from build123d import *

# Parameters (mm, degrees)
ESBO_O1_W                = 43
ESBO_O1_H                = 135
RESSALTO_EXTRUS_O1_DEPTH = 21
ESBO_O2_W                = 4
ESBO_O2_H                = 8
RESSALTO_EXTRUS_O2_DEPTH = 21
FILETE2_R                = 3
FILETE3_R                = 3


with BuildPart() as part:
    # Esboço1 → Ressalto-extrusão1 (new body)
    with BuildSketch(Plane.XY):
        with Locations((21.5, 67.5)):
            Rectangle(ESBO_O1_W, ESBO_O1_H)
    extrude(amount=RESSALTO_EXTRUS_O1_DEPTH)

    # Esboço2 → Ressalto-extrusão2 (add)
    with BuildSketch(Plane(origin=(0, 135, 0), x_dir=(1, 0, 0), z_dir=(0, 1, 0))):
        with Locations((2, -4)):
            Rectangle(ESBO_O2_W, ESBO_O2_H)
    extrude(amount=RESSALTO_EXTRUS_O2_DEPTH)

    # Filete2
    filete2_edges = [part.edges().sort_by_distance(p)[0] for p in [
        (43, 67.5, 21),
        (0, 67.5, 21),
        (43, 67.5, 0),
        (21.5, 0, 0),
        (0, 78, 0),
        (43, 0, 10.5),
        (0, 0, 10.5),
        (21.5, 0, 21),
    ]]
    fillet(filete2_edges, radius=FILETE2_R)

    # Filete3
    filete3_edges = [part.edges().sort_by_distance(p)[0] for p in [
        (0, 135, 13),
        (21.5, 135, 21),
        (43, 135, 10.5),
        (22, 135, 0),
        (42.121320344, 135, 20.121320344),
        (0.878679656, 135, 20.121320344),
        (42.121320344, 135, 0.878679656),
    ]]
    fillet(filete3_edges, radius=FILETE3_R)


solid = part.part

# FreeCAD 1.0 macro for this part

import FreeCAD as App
import Part
import Sketcher

V = App.Vector


def edges_at(feature, points):
    """Names of the edges that pass closest to the given points."""
    edges = feature.Shape.Edges
    near = lambda p: min(range(len(edges)), key=lambda i: edges[i].distToShape(Part.Vertex(*p))[0])
    return sorted({f"Edge{near(p) + 1}" for p in points})


def add_polygon(sketch, points):
    """Adds a closed chain of lines whose ends are joined by coincident constraints."""
    first, n = sketch.GeometryCount, len(points)
    for a, b in zip(points, points[1:] + points[:1]):
        sketch.addGeometry(Part.LineSegment(App.Vector(*a, 0), App.Vector(*b, 0)), False)
    for i in range(n):
        sketch.addConstraint(Sketcher.Constraint("Coincident", first + i, 2, first + (i + 1) % n, 1))

doc = App.newDocument("Part")
body = doc.addObject("PartDesign::Body", "Body")

# Sketch on XY plane
sketch1 = doc.addObject("Sketcher::SketchObject", "Sketch")
body.addObject(sketch1)
sketch1.AttachmentSupport = (doc.XY_Plane, [""])
sketch1.MapMode = "FlatFace"
add_polygon(sketch1, [(0, 135), (0, 0), (43, 0), (43, 135)])  # lines 0-3
sketch1.addConstraint(Sketcher.Constraint("Vertical", 0))
sketch1.addConstraint(Sketcher.Constraint("Horizontal", 1))
sketch1.addConstraint(Sketcher.Constraint("Vertical", 2))
sketch1.addConstraint(Sketcher.Constraint("Horizontal", 3))
sketch1.addConstraint(Sketcher.Constraint("Coincident", 0, 2, -1, 1))
sketch1.addConstraint(Sketcher.Constraint("DistanceX", 1, 1, 1, 2, 43.0))
sketch1.addConstraint(Sketcher.Constraint("DistanceY", 0, 2, 0, 1, 135.0))
pad1 = doc.addObject("PartDesign::Pad", "Pad")
body.addObject(pad1)
pad1.Profile = sketch1
pad1.Length = 21

# Sketch on XZ plane
sketch2 = doc.addObject("Sketcher::SketchObject", "Sketch001")
body.addObject(sketch2)
sketch2.AttachmentSupport = (doc.XZ_Plane, [""])
sketch2.MapMode = "FlatFace"
sketch2.AttachmentOffset = App.Placement(V(0, 0, -135), App.Rotation())
add_polygon(sketch2, [(0, 0), (0, 8), (4, 8), (4, 0)])  # lines 0-3
sketch2.addConstraint(Sketcher.Constraint("Vertical", 0))
sketch2.addConstraint(Sketcher.Constraint("Horizontal", 1))
sketch2.addConstraint(Sketcher.Constraint("Vertical", 2))
sketch2.addConstraint(Sketcher.Constraint("Horizontal", 3))
sketch2.addConstraint(Sketcher.Constraint("Coincident", 3, 2, -1, 1))
sketch2.addConstraint(Sketcher.Constraint("DistanceX", 1, 1, 1, 2, 4.0))
sketch2.addConstraint(Sketcher.Constraint("DistanceY", 0, 1, 0, 2, 8.0))
pad2 = doc.addObject("PartDesign::Pad", "Pad001")
body.addObject(pad2)
pad2.Profile = sketch2
pad2.Length = 21
pad2.Reversed = True
doc.recompute()

fillet = doc.addObject("PartDesign::Fillet", "Fillet")
body.addObject(fillet)
fillet.Base = (pad2, edges_at(pad2, [
    (43, 67.5, 21),
    (0, 67.5, 21),
    (43, 67.5, 0),
    (21.5, 0, 0),
    (0, 78, 0),
    (43, 0, 10.5),
    (0, 0, 10.5),
    (21.5, 0, 21),
]))
fillet.Radius = 3
doc.recompute()

fillet2 = doc.addObject("PartDesign::Fillet", "Fillet001")
body.addObject(fillet2)
fillet2.Base = (fillet, edges_at(fillet, [
    (0, 135, 13),
    (21.5, 135, 21),
    (43, 135, 10.5),
    (22, 135, 0),
    (42.121, 135, 20.121),
    (0.879, 135, 20.121),
    (42.121, 135, 0.879),
]))
fillet2.Radius = 3

doc.recompute()
